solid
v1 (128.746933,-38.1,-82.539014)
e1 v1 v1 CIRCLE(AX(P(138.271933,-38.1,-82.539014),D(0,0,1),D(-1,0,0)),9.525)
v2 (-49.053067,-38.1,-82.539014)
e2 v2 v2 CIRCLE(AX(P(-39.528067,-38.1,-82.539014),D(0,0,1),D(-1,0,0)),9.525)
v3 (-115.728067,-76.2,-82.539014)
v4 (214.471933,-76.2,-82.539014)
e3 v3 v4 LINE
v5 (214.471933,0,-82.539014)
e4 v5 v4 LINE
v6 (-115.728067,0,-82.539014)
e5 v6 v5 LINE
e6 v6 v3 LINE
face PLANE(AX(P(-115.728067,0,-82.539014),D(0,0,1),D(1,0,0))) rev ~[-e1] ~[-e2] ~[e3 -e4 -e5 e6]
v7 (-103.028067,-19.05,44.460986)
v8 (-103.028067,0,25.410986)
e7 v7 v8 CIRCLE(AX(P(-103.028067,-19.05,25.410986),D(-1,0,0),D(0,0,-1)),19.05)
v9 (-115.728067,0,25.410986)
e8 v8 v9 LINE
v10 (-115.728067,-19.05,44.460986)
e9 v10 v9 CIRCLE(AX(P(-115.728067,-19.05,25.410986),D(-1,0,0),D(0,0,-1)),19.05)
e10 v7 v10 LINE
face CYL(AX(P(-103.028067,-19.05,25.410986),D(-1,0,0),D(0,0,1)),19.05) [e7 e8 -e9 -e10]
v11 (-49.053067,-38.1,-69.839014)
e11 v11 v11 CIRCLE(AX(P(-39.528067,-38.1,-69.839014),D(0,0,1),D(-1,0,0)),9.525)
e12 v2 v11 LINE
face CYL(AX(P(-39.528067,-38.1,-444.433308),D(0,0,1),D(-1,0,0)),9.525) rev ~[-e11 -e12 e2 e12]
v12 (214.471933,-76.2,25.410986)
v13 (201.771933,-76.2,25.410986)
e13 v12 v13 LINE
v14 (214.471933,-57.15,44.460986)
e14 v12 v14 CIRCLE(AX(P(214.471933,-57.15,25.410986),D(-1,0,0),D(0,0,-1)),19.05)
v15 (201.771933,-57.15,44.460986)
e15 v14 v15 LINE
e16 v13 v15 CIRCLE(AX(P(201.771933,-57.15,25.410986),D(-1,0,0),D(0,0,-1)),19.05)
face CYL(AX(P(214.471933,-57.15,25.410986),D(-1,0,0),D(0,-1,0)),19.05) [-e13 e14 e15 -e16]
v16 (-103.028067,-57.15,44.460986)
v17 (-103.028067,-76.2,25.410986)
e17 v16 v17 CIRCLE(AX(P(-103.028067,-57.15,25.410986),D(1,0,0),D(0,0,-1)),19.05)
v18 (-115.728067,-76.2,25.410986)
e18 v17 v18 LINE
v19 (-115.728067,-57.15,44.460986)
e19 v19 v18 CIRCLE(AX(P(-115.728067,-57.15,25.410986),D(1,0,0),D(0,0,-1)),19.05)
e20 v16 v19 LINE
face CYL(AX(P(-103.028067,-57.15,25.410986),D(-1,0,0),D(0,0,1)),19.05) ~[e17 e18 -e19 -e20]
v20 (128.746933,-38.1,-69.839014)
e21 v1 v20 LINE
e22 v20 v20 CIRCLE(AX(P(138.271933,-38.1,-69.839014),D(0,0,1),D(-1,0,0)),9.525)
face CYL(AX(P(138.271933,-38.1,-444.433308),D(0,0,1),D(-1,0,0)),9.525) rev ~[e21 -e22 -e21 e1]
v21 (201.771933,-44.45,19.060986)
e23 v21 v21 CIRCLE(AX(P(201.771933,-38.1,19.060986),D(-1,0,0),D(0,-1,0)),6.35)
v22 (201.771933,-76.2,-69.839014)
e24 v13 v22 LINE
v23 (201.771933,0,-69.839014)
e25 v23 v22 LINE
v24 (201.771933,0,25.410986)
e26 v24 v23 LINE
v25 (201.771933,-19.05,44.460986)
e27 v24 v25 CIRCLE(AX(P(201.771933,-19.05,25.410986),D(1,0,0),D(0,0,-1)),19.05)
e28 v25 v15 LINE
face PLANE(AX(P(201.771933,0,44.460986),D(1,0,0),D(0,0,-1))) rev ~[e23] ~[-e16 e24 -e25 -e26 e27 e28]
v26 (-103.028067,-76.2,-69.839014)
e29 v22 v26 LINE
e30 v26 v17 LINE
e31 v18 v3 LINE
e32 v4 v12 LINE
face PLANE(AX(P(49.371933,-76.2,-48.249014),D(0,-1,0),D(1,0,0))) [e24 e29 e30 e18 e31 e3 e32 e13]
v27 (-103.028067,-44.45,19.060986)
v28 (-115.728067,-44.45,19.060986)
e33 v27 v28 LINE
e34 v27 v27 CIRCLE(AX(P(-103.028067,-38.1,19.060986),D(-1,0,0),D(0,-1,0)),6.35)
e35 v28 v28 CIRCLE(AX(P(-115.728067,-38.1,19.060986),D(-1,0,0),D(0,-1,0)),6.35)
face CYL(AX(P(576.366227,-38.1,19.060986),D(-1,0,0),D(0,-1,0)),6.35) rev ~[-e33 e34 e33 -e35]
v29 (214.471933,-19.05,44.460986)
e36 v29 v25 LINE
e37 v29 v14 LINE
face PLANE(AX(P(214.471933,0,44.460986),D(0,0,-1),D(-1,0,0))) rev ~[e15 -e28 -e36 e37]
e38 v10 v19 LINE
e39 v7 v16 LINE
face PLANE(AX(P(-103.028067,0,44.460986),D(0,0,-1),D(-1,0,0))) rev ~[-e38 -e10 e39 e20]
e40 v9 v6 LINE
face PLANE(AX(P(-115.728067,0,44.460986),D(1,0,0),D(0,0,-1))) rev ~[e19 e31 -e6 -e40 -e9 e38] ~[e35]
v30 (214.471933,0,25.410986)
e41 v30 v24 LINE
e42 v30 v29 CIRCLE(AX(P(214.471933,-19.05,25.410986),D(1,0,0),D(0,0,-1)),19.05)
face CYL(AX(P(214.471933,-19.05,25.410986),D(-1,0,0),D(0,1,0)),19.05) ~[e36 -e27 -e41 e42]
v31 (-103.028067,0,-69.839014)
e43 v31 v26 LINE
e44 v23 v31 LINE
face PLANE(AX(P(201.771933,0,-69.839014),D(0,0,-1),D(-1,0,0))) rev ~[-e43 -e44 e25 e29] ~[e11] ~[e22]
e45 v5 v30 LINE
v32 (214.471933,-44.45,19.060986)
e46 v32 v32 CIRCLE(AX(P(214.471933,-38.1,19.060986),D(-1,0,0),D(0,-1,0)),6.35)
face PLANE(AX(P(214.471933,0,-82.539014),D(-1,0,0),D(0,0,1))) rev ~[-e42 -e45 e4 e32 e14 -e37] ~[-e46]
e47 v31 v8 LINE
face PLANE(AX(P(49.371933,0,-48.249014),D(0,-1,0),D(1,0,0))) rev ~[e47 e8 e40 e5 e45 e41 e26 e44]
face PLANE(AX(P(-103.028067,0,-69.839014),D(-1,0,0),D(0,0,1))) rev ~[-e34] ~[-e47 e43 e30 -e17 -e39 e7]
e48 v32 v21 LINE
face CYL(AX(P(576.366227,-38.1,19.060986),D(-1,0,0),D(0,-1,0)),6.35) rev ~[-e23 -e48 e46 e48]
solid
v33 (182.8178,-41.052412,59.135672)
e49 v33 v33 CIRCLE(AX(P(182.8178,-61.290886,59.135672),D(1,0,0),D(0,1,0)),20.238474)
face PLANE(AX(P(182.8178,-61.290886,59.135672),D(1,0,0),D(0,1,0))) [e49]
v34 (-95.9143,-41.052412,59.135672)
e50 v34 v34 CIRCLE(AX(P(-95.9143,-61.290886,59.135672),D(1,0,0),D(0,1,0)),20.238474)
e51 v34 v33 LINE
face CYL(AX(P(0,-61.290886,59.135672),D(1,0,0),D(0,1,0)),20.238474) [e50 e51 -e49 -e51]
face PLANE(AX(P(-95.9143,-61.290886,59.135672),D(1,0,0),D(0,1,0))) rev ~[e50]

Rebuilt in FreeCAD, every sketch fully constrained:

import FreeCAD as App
import Part
import Sketcher
from FreeCAD import Vector
Q = App.Units.Quantity


def edges_at(feature, points):
    """Names of the edges that pass closest to the given points."""
    edges = feature.Shape.Edges
    near = lambda p: min(range(len(edges)), key=lambda i: edges[i].distToShape(Part.Vertex(*p))[0])
    return sorted({f"Edge{near(p) + 1}" for p in points})


def add_polygon(sketch, points):
    """Adds a closed chain of lines whose ends are joined by coincident constraints."""
    first, n = sketch.GeometryCount, len(points)
    for a, b in zip(points, points[1:] + points[:1]):
        sketch.addGeometry(Part.LineSegment(App.Vector(*a, 0), App.Vector(*b, 0)), False)
    for i in range(n):
        sketch.addConstraint(Sketcher.Constraint("Coincident", first + i, 2, first + (i + 1) % n, 1))

doc = App.newDocument("Part")
body = doc.addObject("PartDesign::Body", "Body")

# Sketch on XZ plane
sketch1 = body.newObject("Sketcher::SketchObject", "Sketch")
sketch1.AttachmentSupport = (doc.getObject("XZ_Plane"), [""])
sketch1.MapMode = "FlatFace"
add_polygon(sketch1, [(-103.028067, 44.460986), (-115.728067, 44.460986), (-115.728067, -82.539014), (214.471933, -82.539014), (214.471933, 44.460986), (201.771933, 44.460986), (201.771933, -69.839014), (-103.028067, -69.839014)])  # lines 0-7
sketch1.addConstraint(Sketcher.Constraint("Horizontal", 0))
sketch1.addConstraint(Sketcher.Constraint("Vertical", 1))
sketch1.addConstraint(Sketcher.Constraint("Horizontal", 2))
sketch1.addConstraint(Sketcher.Constraint("Vertical", 3))
sketch1.addConstraint(Sketcher.Constraint("Horizontal", 4))
sketch1.addConstraint(Sketcher.Constraint("Vertical", 5))
sketch1.addConstraint(Sketcher.Constraint("Horizontal", 6))
sketch1.addConstraint(Sketcher.Constraint("Vertical", 7))
sketch1.addConstraint(Sketcher.Constraint("Horizontal", 0, 2, 3, 2))
sketch1.addConstraint(Sketcher.Constraint("Equal", 0, 4))
sketch1.addConstraint(Sketcher.Constraint("DistanceX", 2, 1, 2, 2, Q("13 in")))
sketch1.addConstraint(Sketcher.Constraint("DistanceX", 6, 2, 6, 1, Q("12 in")))
sketch1.addConstraint(Sketcher.Constraint("DistanceY", 1, 2, 1, 1, Q("5 in")))
sketch1.addConstraint(Sketcher.Constraint("DistanceY", 5, 2, 5, 1, Q("4.5 in")))
sketch1.addConstraint(Sketcher.Constraint("DistanceX", 0, 2, -1, 1, Q("115.728067 mm")))
sketch1.addConstraint(Sketcher.Constraint("DistanceY", -1, 1, 0, 2, Q("44.460986 mm")))
pad1 = body.newObject("PartDesign::Pad", "Pad")
pad1.Profile = sketch1
pad1.Length = Q("3 in")

# Sketch on YZ plane
sketch2 = body.newObject("Sketcher::SketchObject", "Sketch001")
sketch2.AttachmentSupport = (doc.getObject("YZ_Plane"), [""])
sketch2.MapMode = "FlatFace"
sketch2.AttachmentOffset = App.Placement(Vector(0, 0, 214.471933), App.Rotation())
sketch2.addGeometry(Part.Circle(Vector(-38.1, 19.060986, 0), Vector(0, 0, 1), 6.35), False)
sketch2.addConstraint(Sketcher.Constraint("Diameter", 0, Q("0.5 in")))
sketch2.addConstraint(Sketcher.Constraint("DistanceX", 0, 3, -1, 1, Q("1.5 in")))
sketch2.addConstraint(Sketcher.Constraint("DistanceY", -1, 1, 0, 3, Q("19.060986 mm")))
doc.recompute()
hole = body.newObject("PartDesign::Hole", "Hole")
hole.Profile = sketch2
hole.ThreadType = "None"
hole.Diameter = Q("0.5 in")
hole.DepthType = "ThroughAll"
doc.recompute()

fillet = body.newObject("PartDesign::Fillet", "Fillet")
fillet.Base = (hole, edges_at(hole, [
    (208.122, -76.2, 44.461),
    (208.122, 0, 44.461),
    (-109.378, -76.2, 44.461),
    (-109.378, 0, 44.461),
]))
fillet.Radius = Q("0.75 in")

# Sketch on XY plane
sketch3 = body.newObject("Sketcher::SketchObject", "Sketch002")
sketch3.AttachmentSupport = (doc.getObject("XY_Plane"), [""])
sketch3.MapMode = "FlatFace"
sketch3.AttachmentOffset = App.Placement(Vector(0, 0, -82.539014), App.Rotation())
sketch3.addGeometry(Part.Circle(Vector(-39.528067, -38.1, 0), Vector(0, 0, 1), 9.525), False)
sketch3.addGeometry(Part.Circle(Vector(138.271933, -38.1, 0), Vector(0, 0, 1), 9.525), False)
sketch3.addConstraint(Sketcher.Constraint("Equal", 0, 1))
sketch3.addConstraint(Sketcher.Constraint("Horizontal", 0, 3, 1, 3))
sketch3.addConstraint(Sketcher.Constraint("Diameter", 0, Q("0.75 in")))
sketch3.addConstraint(Sketcher.Constraint("DistanceX", 0, 3, 1, 3, Q("7 in")))
sketch3.addConstraint(Sketcher.Constraint("DistanceY", 0, 3, -1, 1, Q("1.5 in")))
sketch3.addConstraint(Sketcher.Constraint("DistanceX", 0, 3, -1, 1, Q("39.528067 mm")))
doc.recompute()
hole2 = body.newObject("PartDesign::Hole", "Hole001")
hole2.Profile = sketch3
hole2.ThreadType = "None"
hole2.Diameter = Q("0.75 in")
hole2.DepthType = "ThroughAll"
hole2.Reversed = True
body2 = doc.addObject("PartDesign::Body", "Body001")

# Sketch on YZ plane
sketch4 = body2.newObject("Sketcher::SketchObject", "Sketch003")
sketch4.AttachmentSupport = (doc.getObject("YZ_Plane001"), [""])
sketch4.MapMode = "FlatFace"
sketch4.addGeometry(Part.Circle(Vector(-61.290886, 59.135672, 0), Vector(0, 0, 1), 20.238474), False)
sketch4.addConstraint(Sketcher.Constraint("Diameter", 0, Q("40.476948 mm")))
sketch4.addConstraint(Sketcher.Constraint("DistanceX", 0, 3, -1, 1, Q("61.290886 mm")))
sketch4.addConstraint(Sketcher.Constraint("DistanceY", -1, 1, 0, 3, Q("59.135672 mm")))
pad2 = body2.newObject("PartDesign::Pad", "Pad001")
pad2.Profile = sketch4
pad2.Type = "TwoLengths"
pad2.Length = 182.8178
pad2.Length2 = 95.9143

doc.recompute()
